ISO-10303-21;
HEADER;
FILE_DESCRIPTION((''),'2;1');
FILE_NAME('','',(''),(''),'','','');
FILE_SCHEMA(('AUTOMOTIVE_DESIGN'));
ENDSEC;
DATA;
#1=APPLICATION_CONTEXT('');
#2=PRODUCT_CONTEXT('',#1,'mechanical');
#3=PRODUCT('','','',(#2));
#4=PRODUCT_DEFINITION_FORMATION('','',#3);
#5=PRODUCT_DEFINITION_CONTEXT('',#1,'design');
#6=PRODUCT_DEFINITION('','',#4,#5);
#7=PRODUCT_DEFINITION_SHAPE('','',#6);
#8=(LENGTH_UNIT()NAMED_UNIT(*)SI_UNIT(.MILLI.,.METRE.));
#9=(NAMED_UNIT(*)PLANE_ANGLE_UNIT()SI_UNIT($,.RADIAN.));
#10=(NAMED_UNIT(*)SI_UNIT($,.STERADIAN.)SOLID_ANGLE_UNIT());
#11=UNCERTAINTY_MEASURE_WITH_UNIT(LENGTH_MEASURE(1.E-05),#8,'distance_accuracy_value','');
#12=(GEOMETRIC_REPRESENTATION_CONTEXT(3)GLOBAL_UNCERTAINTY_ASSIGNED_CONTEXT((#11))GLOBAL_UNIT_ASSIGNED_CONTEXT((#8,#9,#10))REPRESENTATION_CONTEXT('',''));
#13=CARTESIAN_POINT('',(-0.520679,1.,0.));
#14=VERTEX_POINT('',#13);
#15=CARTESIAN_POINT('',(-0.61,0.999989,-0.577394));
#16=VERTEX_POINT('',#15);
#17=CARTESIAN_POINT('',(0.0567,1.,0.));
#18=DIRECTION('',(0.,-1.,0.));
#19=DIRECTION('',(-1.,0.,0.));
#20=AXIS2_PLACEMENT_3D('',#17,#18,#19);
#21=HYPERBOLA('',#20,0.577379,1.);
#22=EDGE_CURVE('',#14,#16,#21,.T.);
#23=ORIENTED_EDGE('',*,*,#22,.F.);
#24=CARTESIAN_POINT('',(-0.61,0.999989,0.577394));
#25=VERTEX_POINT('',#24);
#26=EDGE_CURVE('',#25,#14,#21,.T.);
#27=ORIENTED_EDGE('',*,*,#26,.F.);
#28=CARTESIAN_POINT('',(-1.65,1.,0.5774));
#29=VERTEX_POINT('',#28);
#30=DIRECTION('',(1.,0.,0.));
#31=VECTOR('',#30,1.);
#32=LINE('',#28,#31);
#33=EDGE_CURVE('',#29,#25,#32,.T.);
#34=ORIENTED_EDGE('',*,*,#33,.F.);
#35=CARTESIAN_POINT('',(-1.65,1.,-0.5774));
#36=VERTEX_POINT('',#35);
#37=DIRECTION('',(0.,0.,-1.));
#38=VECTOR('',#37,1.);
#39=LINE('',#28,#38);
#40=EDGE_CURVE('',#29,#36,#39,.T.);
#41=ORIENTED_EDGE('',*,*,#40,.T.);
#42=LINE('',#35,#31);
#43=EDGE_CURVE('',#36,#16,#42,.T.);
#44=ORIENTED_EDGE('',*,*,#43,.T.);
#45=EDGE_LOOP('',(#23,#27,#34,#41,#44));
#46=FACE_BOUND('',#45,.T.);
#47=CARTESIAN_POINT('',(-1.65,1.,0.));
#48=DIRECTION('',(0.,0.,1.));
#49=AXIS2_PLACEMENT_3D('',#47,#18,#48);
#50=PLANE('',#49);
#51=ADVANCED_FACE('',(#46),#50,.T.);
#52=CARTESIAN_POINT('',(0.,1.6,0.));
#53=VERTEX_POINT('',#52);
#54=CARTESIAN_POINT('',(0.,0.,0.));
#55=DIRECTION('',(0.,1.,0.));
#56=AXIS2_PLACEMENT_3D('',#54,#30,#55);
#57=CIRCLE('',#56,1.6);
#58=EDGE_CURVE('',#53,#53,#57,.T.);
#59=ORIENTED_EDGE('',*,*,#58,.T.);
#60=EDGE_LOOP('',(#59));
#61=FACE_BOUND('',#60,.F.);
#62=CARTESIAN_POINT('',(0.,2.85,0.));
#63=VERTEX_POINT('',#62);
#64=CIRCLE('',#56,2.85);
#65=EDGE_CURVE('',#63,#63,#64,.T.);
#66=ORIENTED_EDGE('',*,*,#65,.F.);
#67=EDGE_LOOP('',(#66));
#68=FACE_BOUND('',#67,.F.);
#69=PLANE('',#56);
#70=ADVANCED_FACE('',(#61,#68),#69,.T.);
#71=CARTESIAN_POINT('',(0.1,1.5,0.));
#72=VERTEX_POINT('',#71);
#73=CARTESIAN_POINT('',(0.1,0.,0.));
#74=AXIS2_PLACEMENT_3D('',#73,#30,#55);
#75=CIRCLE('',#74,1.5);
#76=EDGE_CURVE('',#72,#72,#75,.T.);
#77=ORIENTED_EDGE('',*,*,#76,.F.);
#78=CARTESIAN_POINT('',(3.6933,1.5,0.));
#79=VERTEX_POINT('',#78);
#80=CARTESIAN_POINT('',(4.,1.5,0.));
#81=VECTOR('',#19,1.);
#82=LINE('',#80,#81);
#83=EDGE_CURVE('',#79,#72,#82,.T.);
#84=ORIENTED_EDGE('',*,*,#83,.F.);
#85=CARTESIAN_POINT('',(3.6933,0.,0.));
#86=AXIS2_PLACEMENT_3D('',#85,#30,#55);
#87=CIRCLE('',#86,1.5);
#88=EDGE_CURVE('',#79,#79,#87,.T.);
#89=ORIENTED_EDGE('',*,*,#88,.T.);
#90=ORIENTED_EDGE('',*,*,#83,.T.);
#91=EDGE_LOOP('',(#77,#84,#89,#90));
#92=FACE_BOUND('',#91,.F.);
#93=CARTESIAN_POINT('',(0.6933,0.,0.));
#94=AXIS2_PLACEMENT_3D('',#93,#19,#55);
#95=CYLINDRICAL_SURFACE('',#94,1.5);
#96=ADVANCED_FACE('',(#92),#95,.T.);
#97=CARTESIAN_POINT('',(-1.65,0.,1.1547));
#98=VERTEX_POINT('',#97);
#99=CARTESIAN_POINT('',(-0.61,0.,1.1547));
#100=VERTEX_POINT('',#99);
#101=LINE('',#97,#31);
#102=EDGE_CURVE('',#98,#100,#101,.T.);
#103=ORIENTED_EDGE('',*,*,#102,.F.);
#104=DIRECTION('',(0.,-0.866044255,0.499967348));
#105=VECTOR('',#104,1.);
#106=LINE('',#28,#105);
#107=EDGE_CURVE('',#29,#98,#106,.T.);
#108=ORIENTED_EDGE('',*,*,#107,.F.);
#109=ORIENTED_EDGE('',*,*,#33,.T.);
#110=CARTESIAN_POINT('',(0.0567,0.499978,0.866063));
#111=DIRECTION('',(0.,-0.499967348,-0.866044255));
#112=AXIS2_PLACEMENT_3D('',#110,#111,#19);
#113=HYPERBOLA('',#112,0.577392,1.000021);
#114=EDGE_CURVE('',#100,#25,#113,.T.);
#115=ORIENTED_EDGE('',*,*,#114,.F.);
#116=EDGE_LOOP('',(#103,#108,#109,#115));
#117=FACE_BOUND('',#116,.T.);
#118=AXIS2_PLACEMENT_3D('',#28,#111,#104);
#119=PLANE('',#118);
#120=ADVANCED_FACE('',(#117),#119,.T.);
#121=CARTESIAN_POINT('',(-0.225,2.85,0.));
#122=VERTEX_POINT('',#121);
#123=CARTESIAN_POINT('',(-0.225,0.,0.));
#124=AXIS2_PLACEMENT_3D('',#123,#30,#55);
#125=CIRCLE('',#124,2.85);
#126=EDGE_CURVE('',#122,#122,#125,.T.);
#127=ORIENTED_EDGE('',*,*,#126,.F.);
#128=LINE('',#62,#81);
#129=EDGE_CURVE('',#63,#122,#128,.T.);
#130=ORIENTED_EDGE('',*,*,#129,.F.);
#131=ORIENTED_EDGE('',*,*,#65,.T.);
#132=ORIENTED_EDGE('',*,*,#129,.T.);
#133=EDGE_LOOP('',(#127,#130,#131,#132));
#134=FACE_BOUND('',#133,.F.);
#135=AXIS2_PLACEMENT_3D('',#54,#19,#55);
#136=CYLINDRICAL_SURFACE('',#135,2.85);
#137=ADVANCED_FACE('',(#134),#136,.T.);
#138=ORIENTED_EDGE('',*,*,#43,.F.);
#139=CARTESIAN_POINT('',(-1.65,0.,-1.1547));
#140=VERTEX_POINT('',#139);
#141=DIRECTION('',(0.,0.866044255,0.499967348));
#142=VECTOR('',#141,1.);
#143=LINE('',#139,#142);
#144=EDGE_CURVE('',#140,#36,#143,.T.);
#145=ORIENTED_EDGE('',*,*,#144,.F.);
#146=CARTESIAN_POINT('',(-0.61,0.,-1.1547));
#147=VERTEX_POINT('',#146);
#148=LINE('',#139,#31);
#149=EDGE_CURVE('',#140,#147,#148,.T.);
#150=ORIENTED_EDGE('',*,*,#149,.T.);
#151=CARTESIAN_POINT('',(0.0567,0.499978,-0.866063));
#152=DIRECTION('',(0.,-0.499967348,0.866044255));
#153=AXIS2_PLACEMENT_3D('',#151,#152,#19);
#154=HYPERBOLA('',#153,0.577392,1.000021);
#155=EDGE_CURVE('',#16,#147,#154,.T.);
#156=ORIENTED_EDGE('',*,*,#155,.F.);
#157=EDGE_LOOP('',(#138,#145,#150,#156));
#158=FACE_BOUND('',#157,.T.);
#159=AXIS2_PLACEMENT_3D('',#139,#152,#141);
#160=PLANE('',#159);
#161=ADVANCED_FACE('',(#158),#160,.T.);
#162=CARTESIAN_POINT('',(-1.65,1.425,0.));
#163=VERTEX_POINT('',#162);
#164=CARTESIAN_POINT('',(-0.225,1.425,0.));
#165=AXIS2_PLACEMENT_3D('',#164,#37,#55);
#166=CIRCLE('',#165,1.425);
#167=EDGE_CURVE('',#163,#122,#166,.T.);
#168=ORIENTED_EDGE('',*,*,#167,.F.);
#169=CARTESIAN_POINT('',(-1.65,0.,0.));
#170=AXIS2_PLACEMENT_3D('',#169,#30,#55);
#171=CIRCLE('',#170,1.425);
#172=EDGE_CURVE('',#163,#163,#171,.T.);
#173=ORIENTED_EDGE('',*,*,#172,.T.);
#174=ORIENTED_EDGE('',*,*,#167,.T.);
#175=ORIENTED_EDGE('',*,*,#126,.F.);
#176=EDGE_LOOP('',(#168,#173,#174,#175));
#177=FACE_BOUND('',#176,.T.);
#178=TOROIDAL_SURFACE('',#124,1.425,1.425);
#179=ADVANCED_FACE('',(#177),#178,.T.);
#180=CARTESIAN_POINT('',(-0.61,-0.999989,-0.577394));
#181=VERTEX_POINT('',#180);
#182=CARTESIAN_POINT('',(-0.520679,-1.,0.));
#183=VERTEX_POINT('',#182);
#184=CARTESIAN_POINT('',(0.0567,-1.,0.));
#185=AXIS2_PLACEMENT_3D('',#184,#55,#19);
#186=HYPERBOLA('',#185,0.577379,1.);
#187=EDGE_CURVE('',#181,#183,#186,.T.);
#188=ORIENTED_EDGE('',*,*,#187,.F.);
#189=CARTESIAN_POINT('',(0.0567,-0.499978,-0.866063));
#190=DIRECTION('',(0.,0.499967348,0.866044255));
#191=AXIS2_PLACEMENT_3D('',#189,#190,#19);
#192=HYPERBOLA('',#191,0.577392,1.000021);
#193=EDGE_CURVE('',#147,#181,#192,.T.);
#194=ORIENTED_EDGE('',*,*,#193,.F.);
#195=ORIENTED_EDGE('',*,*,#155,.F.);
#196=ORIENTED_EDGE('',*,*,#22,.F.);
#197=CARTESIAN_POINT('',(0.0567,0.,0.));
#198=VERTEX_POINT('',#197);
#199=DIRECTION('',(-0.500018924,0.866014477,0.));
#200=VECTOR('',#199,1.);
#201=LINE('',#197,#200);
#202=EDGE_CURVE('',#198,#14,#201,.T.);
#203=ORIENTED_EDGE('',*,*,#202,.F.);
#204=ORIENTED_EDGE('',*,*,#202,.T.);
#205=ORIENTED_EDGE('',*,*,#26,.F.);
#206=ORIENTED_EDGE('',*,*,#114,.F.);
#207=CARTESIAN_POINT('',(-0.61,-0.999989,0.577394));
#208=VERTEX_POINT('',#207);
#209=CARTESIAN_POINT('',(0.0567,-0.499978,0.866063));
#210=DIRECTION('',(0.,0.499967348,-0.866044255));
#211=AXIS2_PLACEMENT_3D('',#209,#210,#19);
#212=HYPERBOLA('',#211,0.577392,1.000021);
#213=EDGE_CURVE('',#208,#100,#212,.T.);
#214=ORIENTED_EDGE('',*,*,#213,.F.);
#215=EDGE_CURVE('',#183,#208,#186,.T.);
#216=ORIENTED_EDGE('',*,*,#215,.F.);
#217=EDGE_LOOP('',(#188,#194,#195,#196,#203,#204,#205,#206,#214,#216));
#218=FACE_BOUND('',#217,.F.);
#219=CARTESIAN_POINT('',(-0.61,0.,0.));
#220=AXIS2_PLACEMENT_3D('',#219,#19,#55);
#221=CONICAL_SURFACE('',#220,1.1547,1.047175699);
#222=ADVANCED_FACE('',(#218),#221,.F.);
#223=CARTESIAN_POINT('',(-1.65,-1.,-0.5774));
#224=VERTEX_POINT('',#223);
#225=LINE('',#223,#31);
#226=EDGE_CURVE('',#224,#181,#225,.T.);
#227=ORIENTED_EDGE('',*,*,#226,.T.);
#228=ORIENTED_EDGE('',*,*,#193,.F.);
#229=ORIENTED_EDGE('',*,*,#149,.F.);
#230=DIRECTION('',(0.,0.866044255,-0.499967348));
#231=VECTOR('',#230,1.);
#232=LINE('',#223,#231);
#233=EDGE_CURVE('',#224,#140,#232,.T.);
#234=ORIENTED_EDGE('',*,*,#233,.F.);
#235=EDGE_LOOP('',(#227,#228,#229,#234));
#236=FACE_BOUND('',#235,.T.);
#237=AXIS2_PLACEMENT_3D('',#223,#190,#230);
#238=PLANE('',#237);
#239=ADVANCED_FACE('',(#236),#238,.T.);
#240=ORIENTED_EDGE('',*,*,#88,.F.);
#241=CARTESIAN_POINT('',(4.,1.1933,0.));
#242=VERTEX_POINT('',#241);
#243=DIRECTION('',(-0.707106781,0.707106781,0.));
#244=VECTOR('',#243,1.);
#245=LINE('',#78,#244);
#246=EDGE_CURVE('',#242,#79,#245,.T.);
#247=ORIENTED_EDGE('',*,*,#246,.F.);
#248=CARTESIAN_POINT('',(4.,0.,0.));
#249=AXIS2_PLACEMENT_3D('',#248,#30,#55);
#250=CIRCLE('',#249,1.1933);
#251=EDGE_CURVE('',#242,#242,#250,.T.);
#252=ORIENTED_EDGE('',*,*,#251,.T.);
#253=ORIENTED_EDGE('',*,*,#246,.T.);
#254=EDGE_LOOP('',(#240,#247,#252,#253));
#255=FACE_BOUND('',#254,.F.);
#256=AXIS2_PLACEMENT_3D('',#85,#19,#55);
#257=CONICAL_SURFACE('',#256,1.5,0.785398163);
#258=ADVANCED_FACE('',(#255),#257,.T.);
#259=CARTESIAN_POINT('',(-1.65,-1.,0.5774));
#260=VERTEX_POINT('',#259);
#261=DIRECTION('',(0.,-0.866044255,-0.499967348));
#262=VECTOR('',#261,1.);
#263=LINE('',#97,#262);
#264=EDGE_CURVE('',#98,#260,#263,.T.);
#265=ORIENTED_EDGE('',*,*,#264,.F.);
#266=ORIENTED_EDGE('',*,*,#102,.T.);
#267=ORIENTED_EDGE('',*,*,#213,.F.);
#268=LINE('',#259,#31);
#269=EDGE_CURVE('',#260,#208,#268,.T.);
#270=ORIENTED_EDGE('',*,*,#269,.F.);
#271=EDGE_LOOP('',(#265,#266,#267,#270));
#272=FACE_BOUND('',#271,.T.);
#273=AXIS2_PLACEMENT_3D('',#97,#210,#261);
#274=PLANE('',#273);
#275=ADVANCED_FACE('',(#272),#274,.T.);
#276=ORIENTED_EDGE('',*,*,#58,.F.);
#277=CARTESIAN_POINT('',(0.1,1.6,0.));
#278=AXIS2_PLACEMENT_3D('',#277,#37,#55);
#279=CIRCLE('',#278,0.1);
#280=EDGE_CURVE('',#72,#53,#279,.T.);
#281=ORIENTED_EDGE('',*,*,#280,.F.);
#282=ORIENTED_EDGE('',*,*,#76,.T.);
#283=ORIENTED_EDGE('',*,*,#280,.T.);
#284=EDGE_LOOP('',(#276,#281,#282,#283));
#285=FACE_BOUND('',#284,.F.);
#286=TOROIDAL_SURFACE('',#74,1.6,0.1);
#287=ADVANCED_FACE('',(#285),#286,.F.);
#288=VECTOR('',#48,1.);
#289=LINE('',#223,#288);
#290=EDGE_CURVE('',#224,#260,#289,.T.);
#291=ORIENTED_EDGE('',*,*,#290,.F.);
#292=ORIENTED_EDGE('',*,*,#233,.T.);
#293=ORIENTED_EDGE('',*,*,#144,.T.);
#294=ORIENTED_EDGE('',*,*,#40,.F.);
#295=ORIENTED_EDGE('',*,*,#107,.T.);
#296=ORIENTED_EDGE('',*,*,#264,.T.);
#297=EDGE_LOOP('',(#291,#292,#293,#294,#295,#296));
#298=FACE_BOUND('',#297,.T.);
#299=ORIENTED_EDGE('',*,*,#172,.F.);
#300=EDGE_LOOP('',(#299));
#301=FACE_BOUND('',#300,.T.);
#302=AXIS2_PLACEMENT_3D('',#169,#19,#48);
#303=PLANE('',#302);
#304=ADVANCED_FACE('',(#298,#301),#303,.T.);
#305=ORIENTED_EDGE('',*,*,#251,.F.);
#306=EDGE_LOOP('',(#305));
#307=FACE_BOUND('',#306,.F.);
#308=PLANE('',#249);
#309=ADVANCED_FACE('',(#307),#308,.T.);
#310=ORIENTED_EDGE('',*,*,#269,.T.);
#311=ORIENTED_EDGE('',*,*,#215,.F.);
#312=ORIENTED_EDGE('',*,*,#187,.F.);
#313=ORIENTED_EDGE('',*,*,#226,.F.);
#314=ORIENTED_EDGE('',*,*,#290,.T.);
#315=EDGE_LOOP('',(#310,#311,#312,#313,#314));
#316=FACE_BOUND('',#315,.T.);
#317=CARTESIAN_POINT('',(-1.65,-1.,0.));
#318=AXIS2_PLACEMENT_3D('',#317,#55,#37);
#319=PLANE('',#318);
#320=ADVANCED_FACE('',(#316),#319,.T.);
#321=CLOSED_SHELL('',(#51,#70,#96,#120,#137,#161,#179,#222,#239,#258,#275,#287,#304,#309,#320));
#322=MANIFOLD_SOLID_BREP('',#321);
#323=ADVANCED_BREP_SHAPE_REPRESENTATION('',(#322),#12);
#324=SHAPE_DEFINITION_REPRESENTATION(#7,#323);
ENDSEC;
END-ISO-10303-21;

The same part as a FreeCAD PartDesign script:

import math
import FreeCAD as App
import Part
import Sketcher
Q = App.Units.Quantity


def edges_at(feature, points):
    """Names of the edges that pass closest to the given points."""
    edges = feature.Shape.Edges
    near = lambda p: min(range(len(edges)), key=lambda i: edges[i].distToShape(Part.Vertex(*p))[0])
    return sorted({f"Edge{near(p) + 1}" for p in points})

doc = App.newDocument("Part")
body = doc.addObject("PartDesign::Body", "Body")

# Sketch on XY plane
sketch1 = body.newObject("Sketcher::SketchObject", "Sketch")
sketch1.AttachmentSupport = (doc.getObject("XY_Plane"), [""])
sketch1.MapMode = "FlatFace"
sketch1.addGeometry(Part.LineSegment(App.Vector(0.0567, 0, 0), App.Vector(4, 0, 0)), False)
sketch1.addGeometry(Part.LineSegment(App.Vector(4, 0, 0), App.Vector(4, 1.5, 0)), False)
sketch1.addGeometry(Part.LineSegment(App.Vector(4, 1.5, 0), App.Vector(0, 1.5, 0)), False)
sketch1.addGeometry(Part.LineSegment(App.Vector(0, 1.5, 0), App.Vector(0, 2.85, 0)), False)
sketch1.addGeometry(Part.LineSegment(App.Vector(0, 2.85, 0), App.Vector(-1.65, 2.85, 0)), False)
sketch1.addGeometry(Part.LineSegment(App.Vector(-1.65, 2.85, 0), App.Vector(-1.65, 1.1547, 0)), False)
sketch1.addGeometry(Part.LineSegment(App.Vector(-1.65, 1.1547, 0), App.Vector(-0.61, 1.1547, 0)), False)
sketch1.addGeometry(Part.LineSegment(App.Vector(-0.61, 1.1547, 0), App.Vector(0.0567, 0, 0)), False)
sketch1.addConstraint(Sketcher.Constraint("Coincident", 0, 2, 1, 1))
sketch1.addConstraint(Sketcher.Constraint("Coincident", 1, 2, 2, 1))
sketch1.addConstraint(Sketcher.Constraint("Coincident", 2, 2, 3, 1))
sketch1.addConstraint(Sketcher.Constraint("Coincident", 3, 2, 4, 1))
sketch1.addConstraint(Sketcher.Constraint("Coincident", 4, 2, 5, 1))
sketch1.addConstraint(Sketcher.Constraint("Coincident", 5, 2, 6, 1))
sketch1.addConstraint(Sketcher.Constraint("Coincident", 6, 2, 7, 1))
sketch1.addConstraint(Sketcher.Constraint("Coincident", 7, 2, 0, 1))
sketch1.addConstraint(Sketcher.Constraint("Horizontal", 0))
sketch1.addConstraint(Sketcher.Constraint("Vertical", 1))
sketch1.addConstraint(Sketcher.Constraint("Horizontal", 2))
sketch1.addConstraint(Sketcher.Constraint("Vertical", 3))
sketch1.addConstraint(Sketcher.Constraint("Horizontal", 4))
sketch1.addConstraint(Sketcher.Constraint("Vertical", 5))
sketch1.addConstraint(Sketcher.Constraint("Horizontal", 6))
sketch1.addConstraint(Sketcher.Constraint("PointOnObject", 0, 2, -1))
sketch1.addConstraint(Sketcher.Constraint("PointOnObject", 2, 2, -2))
sketch1.addConstraint(Sketcher.Constraint("DistanceX", 2, 2, 2, 1, Q("4 mm")))
sketch1.addConstraint(Sketcher.Constraint("DistanceX", 4, 2, 4, 1, Q("1.65 mm")))
sketch1.addConstraint(Sketcher.Constraint("DistanceX", 6, 1, 6, 2, Q("1.04 mm")))
sketch1.addConstraint(Sketcher.Constraint("DistanceY", 1, 1, 1, 2, Q("1.5 mm")))
sketch1.addConstraint(Sketcher.Constraint("DistanceY", 3, 1, 3, 2, Q("1.35 mm")))
sketch1.addConstraint(Sketcher.Constraint("DistanceX", 0, 1, 0, 2, Q("3.9433 mm")))
sketch1.addConstraint(Sketcher.Constraint("DistanceY", 5, 2, 5, 1, Q("1.6953 mm")))
revolution = body.newObject("PartDesign::Revolution", "Revolution")
revolution.Profile = sketch1
revolution.ReferenceAxis = (sketch1, ["H_Axis"])
revolution.Angle = 360

# Sketch on YZ plane
sketch2 = body.newObject("Sketcher::SketchObject", "Sketch001")
sketch2.AttachmentSupport = (doc.getObject("YZ_Plane"), [""])
sketch2.MapMode = "FlatFace"
sketch2.AttachmentOffset = App.Placement(App.Vector(0, 0, -1.65), App.Rotation())
sketch2.addGeometry(Part.LineSegment(App.Vector(1, 0.5774, 0), App.Vector(0, 1.1547, 0)), False)
sketch2.addGeometry(Part.ArcOfCircle(Part.Circle(App.Vector(0, 0, 0), App.Vector(0, 0, 1), 1.1547), math.radians(30.002137), math.radians(90)), False)
sketch2.addGeometry(Part.ArcOfCircle(Part.Circle(App.Vector(0, 0, 0), App.Vector(0, 0, 1), 1.1547), math.radians(90), math.radians(149.997863)), False)
sketch2.addGeometry(Part.LineSegment(App.Vector(0, 1.1547, 0), App.Vector(-1, 0.5774, 0)), False)
sketch2.addGeometry(Part.ArcOfCircle(Part.Circle(App.Vector(0, 0, 0), App.Vector(0, 0, 1), 1.1547), math.radians(-30.002137), math.radians(30.002137)), False)
sketch2.addGeometry(Part.LineSegment(App.Vector(1, 0.5774, 0), App.Vector(1, -0.5774, 0)), False)
sketch2.addGeometry(Part.LineSegment(App.Vector(-1, 0.5774, 0), App.Vector(-1, -0.5774, 0)), False)
sketch2.addGeometry(Part.ArcOfCircle(Part.Circle(App.Vector(0, 0, 0), App.Vector(0, 0, 1), 1.1547), math.radians(149.997863), math.radians(210.002137)), False)
sketch2.addGeometry(Part.LineSegment(App.Vector(-1, -0.5774, 0), App.Vector(0, -1.1547, 0)), False)
sketch2.addGeometry(Part.ArcOfCircle(Part.Circle(App.Vector(0, 0, 0), App.Vector(0, 0, 1), 1.1547), math.radians(-149.997863), math.radians(-90)), False)
sketch2.addGeometry(Part.ArcOfCircle(Part.Circle(App.Vector(0, 0, 0), App.Vector(0, 0, 1), 1.1547), math.radians(-90), math.radians(-30.002137)), False)
sketch2.addGeometry(Part.LineSegment(App.Vector(0, -1.1547, 0), App.Vector(1, -0.5774, 0)), False)
sketch2.addConstraint(Sketcher.Constraint("Coincident", 0, 1, 1, 1))
sketch2.addConstraint(Sketcher.Constraint("Coincident", 1, 2, 0, 2))
sketch2.addConstraint(Sketcher.Constraint("Coincident", 2, 1, 3, 1))
sketch2.addConstraint(Sketcher.Constraint("Coincident", 3, 2, 2, 2))
sketch2.addConstraint(Sketcher.Constraint("Coincident", 4, 1, 5, 2))
sketch2.addConstraint(Sketcher.Constraint("Coincident", 5, 1, 4, 2))
sketch2.addConstraint(Sketcher.Constraint("Coincident", 6, 1, 7, 1))
sketch2.addConstraint(Sketcher.Constraint("Coincident", 7, 2, 6, 2))
sketch2.addConstraint(Sketcher.Constraint("Coincident", 8, 1, 9, 1))
sketch2.addConstraint(Sketcher.Constraint("Coincident", 9, 2, 8, 2))
sketch2.addConstraint(Sketcher.Constraint("Coincident", 10, 1, 11, 1))
sketch2.addConstraint(Sketcher.Constraint("Coincident", 11, 2, 10, 2))
sketch2.addConstraint(Sketcher.Constraint("Vertical", 5))
sketch2.addConstraint(Sketcher.Constraint("Vertical", 6))
sketch2.addConstraint(Sketcher.Constraint("Coincident", 1, 3, -1, 1))
sketch2.addConstraint(Sketcher.Constraint("Coincident", 2, 3, -1, 1))
sketch2.addConstraint(Sketcher.Constraint("Coincident", 4, 3, -1, 1))
sketch2.addConstraint(Sketcher.Constraint("Coincident", 7, 3, -1, 1))
sketch2.addConstraint(Sketcher.Constraint("Coincident", 9, 3, -1, 1))
sketch2.addConstraint(Sketcher.Constraint("Coincident", 10, 3, -1, 1))
sketch2.addConstraint(Sketcher.Constraint("Coincident", 2, 1, 1, 2))
sketch2.addConstraint(Sketcher.Constraint("Coincident", 5, 1, 0, 1))
sketch2.addConstraint(Sketcher.Constraint("Coincident", 6, 1, 3, 2))
sketch2.addConstraint(Sketcher.Constraint("Coincident", 8, 1, 7, 2))
sketch2.addConstraint(Sketcher.Constraint("Coincident", 10, 1, 9, 2))
sketch2.addConstraint(Sketcher.Constraint("PointOnObject", 1, 2, -2))
sketch2.addConstraint(Sketcher.Constraint("PointOnObject", 9, 2, -2))
sketch2.addConstraint(Sketcher.Constraint("Parallel", 0, 8))
sketch2.addConstraint(Sketcher.Constraint("Parallel", 3, 11))
sketch2.addConstraint(Sketcher.Constraint("DistanceX", -1, 1, 0, 1, Q("1 mm")))
sketch2.addConstraint(Sketcher.Constraint("Radius", 1, Q("1.1547 mm")))
pad1 = body.newObject("PartDesign::Pad", "Pad")
pad1.Profile = sketch2
pad1.Type = "UpToFirst"
doc.recompute()

fillet = body.newObject("PartDesign::Fillet", "Fillet")
fillet.Base = (pad1, edges_at(pad1, [(-1.65, -2.85, 0)]))
fillet.Radius = 1.425
doc.recompute()

chamfer = body.newObject("PartDesign::Chamfer", "Chamfer")
chamfer.Base = (fillet, edges_at(fillet, [(4, -1.5, 0)]))
chamfer.ChamferType = "Two distances"
chamfer.Size = 0.3067
chamfer.Size2 = 0.3067
doc.recompute()

fillet2 = body.newObject("PartDesign::Fillet", "Fillet001")
fillet2.Base = (chamfer, edges_at(chamfer, [(0, -1.5, 0)]))
fillet2.Radius = 0.1

doc.recompute()
